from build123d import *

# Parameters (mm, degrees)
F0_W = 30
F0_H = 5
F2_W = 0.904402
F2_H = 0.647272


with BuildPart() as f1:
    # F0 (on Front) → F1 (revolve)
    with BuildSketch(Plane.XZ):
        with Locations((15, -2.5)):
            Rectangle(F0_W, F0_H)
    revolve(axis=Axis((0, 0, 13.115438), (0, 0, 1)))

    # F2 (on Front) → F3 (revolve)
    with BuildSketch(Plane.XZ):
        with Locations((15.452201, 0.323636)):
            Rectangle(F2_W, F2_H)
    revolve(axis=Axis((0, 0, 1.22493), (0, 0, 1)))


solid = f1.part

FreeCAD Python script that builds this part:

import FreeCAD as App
import Part
import Sketcher
from FreeCAD import Vector

doc = App.newDocument("Part")
body = doc.addObject("PartDesign::Body", "Body")

# Sketch on XZ plane
sketch1 = body.newObject("Sketcher::SketchObject", "Sketch")
sketch1.AttachmentSupport = (doc.getObject("XZ_Plane"), [""])
sketch1.MapMode = "FlatFace"
sketch1.addGeometry([
    Part.LineSegment(Vector(0, 0, 0), Vector(0, -5, 0)),
    Part.LineSegment(Vector(0, -5, 0), Vector(30, -5, 0)),
    Part.LineSegment(Vector(30, -5, 0), Vector(30, 0, 0)),
    Part.LineSegment(Vector(30, 0, 0), Vector(0, 0, 0)),
], False)
sketch1.addConstraint([
    Sketcher.Constraint("Coincident", 0, 2, 1, 1),
    Sketcher.Constraint("Coincident", 1, 2, 2, 1),
    Sketcher.Constraint("Coincident", 2, 2, 3, 1),
    Sketcher.Constraint("Coincident", 3, 2, 0, 1),
    Sketcher.Constraint("Vertical", 0),
    Sketcher.Constraint("Horizontal", 1),
    Sketcher.Constraint("Vertical", 2),
    Sketcher.Constraint("Horizontal", 3),
    Sketcher.Constraint("Coincident", 3, 2, -1, 1),
    Sketcher.Constraint("DistanceX", 1, 1, 1, 2, 30.0),
    Sketcher.Constraint("DistanceY", 0, 2, 0, 1, 5.0),
])
revolution = body.newObject("PartDesign::Revolution", "Revolution")
revolution.Profile = sketch1
revolution.ReferenceAxis = (sketch1, ["V_Axis"])
revolution.Angle = 360

# Sketch on XZ plane
sketch2 = body.newObject("Sketcher::SketchObject", "Sketch001")
sketch2.AttachmentSupport = (doc.getObject("XZ_Plane"), [""])
sketch2.MapMode = "FlatFace"
sketch2.addGeometry([
    Part.LineSegment(Vector(15, 0.647272, 0), Vector(15, 0, 0)),
    Part.LineSegment(Vector(15, 0, 0), Vector(15.904402, 0, 0)),
    Part.LineSegment(Vector(15.904402, 0, 0), Vector(15.904402, 0.647272, 0)),
    Part.LineSegment(Vector(15.904402, 0.647272, 0), Vector(15, 0.647272, 0)),
], False)
sketch2.addConstraint([
    Sketcher.Constraint("Coincident", 0, 2, 1, 1),
    Sketcher.Constraint("Coincident", 1, 2, 2, 1),
    Sketcher.Constraint("Coincident", 2, 2, 3, 1),
    Sketcher.Constraint("Coincident", 3, 2, 0, 1),
    Sketcher.Constraint("Vertical", 0),
    Sketcher.Constraint("Horizontal", 1),
    Sketcher.Constraint("Vertical", 2),
    Sketcher.Constraint("Horizontal", 3),
    Sketcher.Constraint("PointOnObject", 0, 2, -1),
    Sketcher.Constraint("DistanceX", -1, 1, 0, 2, 15.0),
    Sketcher.Constraint("DistanceX", 1, 1, 1, 2, 0.904402),
    Sketcher.Constraint("DistanceY", 0, 2, 0, 1, 0.647272),
])
revolution2 = body.newObject("PartDesign::Revolution", "Revolution001")
revolution2.Profile = sketch2
revolution2.ReferenceAxis = (sketch2, ["V_Axis"])
revolution2.Angle = 360

doc.recompute()
